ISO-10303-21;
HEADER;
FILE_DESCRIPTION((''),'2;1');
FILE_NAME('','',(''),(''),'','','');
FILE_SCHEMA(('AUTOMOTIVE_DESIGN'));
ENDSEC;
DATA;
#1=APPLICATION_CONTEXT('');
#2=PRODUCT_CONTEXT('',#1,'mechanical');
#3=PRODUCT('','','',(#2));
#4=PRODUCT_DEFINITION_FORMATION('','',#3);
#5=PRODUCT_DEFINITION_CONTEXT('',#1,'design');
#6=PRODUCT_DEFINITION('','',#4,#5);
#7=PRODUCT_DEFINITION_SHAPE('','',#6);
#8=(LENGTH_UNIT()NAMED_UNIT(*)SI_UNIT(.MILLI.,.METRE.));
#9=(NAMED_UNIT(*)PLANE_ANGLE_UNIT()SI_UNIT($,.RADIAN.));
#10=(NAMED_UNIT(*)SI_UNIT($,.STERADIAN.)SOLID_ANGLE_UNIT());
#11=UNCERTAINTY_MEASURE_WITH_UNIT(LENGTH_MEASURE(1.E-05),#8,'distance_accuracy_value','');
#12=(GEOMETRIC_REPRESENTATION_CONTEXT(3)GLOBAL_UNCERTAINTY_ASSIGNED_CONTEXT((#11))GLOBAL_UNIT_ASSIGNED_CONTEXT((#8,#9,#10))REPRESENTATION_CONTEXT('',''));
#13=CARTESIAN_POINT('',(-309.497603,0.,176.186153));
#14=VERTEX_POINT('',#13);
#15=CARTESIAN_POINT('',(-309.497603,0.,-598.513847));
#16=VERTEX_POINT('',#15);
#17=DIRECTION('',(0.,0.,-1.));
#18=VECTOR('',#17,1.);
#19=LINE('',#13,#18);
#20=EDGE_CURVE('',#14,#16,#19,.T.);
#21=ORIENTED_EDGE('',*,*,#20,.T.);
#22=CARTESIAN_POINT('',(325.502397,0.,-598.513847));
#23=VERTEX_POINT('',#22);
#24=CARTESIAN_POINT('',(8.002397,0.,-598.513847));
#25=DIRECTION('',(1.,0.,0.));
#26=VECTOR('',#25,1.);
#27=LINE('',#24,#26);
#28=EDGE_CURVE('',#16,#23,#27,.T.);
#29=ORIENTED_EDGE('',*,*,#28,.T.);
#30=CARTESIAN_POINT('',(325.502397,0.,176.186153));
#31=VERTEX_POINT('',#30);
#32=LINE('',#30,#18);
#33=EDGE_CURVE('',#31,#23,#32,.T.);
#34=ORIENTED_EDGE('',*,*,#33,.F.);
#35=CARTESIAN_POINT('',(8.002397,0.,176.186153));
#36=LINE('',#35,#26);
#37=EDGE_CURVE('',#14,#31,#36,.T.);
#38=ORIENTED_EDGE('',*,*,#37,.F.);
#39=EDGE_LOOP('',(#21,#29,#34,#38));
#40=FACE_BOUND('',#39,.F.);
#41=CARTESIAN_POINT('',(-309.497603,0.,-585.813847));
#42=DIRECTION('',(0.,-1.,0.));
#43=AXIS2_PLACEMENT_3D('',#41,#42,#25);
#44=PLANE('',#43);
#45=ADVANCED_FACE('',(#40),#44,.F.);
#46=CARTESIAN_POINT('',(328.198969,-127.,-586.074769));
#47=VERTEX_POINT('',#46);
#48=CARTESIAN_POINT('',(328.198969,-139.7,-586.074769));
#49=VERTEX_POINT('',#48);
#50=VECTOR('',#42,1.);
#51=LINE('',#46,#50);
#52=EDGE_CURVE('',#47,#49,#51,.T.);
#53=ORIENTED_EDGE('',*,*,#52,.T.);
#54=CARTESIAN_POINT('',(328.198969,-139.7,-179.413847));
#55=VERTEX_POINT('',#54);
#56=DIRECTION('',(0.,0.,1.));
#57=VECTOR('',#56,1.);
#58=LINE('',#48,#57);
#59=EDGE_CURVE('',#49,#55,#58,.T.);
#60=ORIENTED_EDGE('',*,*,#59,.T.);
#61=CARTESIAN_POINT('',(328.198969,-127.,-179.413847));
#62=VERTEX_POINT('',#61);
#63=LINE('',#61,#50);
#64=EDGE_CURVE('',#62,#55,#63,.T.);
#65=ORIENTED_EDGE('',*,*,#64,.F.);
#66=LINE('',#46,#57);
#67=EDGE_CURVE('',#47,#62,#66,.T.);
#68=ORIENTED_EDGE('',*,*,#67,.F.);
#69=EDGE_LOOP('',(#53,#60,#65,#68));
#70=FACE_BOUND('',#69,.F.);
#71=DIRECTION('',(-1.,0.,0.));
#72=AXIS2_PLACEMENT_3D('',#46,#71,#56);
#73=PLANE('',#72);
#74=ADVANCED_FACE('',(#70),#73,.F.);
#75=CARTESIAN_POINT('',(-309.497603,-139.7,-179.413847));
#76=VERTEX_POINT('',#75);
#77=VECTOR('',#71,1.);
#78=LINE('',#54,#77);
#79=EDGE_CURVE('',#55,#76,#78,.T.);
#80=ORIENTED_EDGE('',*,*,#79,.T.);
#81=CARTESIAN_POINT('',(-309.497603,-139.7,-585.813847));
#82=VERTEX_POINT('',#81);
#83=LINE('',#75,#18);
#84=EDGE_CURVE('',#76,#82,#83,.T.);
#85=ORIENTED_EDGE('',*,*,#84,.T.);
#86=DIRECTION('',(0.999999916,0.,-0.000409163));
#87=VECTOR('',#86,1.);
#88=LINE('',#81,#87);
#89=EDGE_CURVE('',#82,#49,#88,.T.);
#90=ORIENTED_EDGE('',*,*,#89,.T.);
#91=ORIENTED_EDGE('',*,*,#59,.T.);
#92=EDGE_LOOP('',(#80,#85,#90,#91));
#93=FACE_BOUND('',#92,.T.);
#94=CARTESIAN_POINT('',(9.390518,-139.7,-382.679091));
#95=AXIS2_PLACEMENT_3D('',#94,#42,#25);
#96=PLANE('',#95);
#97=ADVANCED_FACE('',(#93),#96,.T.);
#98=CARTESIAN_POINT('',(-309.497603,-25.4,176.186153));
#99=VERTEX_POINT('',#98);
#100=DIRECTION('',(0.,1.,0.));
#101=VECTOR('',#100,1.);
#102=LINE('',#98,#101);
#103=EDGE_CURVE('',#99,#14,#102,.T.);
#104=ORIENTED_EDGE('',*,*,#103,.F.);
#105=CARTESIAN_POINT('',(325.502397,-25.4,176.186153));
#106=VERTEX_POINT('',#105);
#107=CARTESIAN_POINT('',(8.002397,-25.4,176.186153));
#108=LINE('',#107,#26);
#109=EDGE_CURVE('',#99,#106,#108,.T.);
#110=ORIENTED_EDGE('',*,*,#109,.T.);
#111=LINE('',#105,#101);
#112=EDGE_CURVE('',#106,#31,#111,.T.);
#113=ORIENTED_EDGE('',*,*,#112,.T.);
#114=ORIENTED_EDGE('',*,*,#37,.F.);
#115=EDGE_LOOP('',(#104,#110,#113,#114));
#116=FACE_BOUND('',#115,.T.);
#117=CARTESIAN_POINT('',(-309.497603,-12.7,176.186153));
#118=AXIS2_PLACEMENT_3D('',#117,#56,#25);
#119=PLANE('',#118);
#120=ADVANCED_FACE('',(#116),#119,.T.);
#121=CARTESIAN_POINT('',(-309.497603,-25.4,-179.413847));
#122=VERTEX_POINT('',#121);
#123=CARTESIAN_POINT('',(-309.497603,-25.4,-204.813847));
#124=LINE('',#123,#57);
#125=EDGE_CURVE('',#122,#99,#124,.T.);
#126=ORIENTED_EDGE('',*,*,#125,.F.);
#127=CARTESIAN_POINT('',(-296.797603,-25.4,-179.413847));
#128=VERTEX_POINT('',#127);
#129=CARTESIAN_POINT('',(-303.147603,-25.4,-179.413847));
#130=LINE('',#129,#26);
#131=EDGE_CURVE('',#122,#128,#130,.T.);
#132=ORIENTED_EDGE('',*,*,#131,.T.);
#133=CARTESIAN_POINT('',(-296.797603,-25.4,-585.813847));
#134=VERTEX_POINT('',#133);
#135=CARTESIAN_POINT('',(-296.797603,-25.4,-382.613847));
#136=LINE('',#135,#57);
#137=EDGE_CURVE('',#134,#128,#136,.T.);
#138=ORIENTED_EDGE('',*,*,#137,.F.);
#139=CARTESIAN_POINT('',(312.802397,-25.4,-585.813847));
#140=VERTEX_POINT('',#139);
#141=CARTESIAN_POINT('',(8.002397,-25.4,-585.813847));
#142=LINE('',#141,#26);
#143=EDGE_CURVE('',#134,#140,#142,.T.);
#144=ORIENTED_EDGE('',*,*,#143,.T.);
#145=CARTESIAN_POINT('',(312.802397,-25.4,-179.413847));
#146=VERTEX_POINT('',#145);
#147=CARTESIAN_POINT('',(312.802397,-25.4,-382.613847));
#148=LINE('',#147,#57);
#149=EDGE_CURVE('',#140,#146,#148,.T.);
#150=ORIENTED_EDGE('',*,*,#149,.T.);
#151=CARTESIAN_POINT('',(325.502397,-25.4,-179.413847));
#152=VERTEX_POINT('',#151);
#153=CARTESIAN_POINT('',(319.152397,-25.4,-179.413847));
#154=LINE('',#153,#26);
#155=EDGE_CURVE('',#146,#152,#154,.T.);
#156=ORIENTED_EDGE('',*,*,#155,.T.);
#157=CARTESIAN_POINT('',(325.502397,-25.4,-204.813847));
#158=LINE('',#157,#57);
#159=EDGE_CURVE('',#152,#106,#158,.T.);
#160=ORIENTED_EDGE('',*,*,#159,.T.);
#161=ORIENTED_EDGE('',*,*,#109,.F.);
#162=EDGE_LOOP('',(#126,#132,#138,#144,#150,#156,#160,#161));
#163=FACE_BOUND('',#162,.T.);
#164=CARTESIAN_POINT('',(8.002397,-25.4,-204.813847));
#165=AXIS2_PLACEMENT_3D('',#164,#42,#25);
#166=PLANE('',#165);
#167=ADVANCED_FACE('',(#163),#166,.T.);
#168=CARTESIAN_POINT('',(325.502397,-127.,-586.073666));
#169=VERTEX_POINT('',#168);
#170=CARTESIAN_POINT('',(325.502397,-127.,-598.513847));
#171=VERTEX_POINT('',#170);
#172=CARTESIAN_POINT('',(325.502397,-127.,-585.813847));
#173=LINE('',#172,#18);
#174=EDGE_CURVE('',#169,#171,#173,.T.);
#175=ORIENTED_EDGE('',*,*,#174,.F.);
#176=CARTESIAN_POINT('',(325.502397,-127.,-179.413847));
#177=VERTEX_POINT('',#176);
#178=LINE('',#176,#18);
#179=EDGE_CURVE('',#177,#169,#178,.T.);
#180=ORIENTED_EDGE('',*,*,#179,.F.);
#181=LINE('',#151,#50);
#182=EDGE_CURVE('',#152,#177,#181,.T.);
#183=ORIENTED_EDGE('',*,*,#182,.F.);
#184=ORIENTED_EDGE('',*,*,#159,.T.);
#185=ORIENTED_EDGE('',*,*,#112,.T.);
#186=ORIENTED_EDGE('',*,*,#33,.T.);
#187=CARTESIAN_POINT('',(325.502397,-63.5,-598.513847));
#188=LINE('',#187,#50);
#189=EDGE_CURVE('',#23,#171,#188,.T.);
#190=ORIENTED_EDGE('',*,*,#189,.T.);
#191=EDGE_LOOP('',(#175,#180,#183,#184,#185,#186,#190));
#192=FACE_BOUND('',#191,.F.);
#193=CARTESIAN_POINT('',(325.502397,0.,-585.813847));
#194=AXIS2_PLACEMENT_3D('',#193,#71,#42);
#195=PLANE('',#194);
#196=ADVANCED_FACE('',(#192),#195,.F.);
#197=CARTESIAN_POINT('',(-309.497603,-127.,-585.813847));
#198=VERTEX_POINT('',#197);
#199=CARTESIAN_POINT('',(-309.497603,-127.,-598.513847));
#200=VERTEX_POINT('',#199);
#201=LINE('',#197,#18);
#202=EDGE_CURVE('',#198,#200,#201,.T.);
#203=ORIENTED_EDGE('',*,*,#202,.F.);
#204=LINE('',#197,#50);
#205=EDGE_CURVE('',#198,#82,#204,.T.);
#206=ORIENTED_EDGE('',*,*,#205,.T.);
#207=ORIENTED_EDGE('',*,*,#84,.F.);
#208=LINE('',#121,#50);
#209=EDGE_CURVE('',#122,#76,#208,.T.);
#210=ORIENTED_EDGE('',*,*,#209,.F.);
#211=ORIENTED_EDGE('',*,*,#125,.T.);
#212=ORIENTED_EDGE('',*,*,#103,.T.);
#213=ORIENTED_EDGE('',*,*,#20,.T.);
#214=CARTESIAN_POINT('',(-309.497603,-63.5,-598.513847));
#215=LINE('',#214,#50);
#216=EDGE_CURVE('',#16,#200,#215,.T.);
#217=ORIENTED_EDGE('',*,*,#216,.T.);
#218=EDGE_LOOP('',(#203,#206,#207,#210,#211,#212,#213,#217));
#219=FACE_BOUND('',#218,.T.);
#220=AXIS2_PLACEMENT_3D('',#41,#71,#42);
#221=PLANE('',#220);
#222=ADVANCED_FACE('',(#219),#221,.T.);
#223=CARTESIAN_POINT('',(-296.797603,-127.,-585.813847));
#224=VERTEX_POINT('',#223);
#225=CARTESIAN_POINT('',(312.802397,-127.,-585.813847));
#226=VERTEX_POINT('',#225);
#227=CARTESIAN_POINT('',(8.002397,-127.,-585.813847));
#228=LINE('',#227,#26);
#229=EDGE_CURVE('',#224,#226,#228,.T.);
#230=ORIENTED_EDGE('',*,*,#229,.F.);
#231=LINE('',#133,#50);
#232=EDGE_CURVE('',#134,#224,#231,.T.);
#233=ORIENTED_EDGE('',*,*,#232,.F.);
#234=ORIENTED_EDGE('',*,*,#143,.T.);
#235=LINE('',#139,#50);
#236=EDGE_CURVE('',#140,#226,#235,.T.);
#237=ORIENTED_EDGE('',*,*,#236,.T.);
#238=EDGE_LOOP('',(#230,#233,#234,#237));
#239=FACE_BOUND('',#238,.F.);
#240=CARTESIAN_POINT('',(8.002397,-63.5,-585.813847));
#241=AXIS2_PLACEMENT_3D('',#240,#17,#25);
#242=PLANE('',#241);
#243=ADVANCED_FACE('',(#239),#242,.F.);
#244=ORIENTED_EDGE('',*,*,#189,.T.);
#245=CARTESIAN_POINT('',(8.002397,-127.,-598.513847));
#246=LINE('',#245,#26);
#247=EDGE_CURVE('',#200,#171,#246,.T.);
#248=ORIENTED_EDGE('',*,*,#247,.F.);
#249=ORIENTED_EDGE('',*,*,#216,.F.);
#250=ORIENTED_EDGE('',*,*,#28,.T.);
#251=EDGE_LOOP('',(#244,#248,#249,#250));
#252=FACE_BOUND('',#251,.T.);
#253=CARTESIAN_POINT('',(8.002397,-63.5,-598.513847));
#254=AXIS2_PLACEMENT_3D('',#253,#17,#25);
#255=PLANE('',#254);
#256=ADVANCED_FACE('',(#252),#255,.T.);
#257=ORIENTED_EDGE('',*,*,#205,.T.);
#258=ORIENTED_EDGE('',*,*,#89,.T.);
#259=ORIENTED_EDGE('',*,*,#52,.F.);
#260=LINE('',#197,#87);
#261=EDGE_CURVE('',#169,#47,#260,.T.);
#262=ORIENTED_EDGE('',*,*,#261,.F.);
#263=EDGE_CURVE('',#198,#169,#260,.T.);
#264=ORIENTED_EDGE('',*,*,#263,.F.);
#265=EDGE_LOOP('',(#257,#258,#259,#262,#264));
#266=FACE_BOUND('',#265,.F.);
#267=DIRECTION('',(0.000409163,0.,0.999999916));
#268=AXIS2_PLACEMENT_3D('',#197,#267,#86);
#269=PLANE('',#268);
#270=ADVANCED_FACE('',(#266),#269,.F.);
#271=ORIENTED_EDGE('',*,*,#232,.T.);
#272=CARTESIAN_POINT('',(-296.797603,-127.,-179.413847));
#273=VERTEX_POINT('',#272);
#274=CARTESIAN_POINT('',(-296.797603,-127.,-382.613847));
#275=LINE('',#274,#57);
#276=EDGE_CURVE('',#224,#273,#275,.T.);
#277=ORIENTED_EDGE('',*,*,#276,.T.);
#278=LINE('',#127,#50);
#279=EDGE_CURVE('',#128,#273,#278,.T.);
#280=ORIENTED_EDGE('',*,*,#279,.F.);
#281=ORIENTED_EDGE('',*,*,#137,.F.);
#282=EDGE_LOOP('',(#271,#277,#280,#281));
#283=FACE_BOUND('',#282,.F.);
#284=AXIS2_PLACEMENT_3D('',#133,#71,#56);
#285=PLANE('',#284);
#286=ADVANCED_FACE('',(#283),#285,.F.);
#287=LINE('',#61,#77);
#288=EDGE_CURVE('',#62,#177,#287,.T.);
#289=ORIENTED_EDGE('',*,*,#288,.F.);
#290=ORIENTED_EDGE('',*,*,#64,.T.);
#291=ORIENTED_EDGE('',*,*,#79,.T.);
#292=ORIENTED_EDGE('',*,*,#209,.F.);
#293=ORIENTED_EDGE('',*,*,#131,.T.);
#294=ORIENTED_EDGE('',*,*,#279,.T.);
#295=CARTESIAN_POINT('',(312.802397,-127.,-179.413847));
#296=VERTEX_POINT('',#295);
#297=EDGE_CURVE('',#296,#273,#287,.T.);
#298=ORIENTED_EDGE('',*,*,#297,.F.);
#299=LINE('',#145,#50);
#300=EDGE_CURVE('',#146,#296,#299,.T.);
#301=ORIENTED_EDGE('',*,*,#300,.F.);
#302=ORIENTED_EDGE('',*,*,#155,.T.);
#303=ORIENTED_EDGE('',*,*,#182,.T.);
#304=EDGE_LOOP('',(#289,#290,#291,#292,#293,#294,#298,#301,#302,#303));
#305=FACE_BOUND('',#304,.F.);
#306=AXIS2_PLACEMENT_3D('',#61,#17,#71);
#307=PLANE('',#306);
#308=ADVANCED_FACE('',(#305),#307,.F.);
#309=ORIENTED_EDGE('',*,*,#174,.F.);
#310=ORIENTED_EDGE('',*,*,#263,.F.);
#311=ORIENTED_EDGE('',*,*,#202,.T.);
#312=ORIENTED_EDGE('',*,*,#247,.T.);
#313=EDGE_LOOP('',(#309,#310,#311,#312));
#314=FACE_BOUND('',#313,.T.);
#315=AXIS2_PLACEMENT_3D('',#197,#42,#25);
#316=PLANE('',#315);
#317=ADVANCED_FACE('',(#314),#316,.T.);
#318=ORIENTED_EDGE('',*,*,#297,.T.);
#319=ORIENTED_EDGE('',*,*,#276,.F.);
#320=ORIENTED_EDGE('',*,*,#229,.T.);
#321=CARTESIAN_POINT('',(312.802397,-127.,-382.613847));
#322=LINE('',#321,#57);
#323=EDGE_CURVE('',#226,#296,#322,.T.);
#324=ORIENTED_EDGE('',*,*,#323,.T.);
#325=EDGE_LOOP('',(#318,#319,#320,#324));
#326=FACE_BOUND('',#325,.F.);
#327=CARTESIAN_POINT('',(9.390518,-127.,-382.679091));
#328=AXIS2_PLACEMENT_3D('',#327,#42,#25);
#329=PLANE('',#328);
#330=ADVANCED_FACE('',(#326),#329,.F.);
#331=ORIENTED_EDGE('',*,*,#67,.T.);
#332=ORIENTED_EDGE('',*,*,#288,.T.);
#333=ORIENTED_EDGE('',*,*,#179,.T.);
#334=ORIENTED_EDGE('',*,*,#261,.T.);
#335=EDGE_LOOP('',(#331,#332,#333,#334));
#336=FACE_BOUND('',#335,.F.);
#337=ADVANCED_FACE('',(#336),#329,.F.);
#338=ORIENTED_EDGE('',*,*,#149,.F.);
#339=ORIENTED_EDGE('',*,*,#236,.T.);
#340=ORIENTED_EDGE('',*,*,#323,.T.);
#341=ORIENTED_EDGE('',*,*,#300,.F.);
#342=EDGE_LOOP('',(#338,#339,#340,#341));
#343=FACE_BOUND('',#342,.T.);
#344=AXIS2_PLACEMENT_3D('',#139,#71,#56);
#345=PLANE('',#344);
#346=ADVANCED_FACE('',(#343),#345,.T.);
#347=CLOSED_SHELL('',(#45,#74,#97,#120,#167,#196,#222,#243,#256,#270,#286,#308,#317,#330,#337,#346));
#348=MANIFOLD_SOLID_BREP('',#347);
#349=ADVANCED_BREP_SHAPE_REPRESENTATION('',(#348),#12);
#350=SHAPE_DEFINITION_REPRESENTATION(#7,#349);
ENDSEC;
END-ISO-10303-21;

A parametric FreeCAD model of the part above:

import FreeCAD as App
import Part
import Sketcher
Q = App.Units.Quantity


def add_polygon(sketch, points):
    """Adds a closed chain of lines whose ends are joined by coincident constraints."""
    first, n = sketch.GeometryCount, len(points)
    for a, b in zip(points, points[1:] + points[:1]):
        sketch.addGeometry(Part.LineSegment(App.Vector(*a, 0), App.Vector(*b, 0)), False)
    for i in range(n):
        sketch.addConstraint(Sketcher.Constraint("Coincident", first + i, 2, first + (i + 1) % n, 1))

doc = App.newDocument("Part")
body = doc.addObject("PartDesign::Body", "Body")

# Sketch on XZ plane
sketch1 = doc.addObject("Sketcher::SketchObject", "Sketch")
body.addObject(sketch1)
sketch1.AttachmentSupport = (doc.XZ_Plane, [""])
sketch1.MapMode = "FlatFace"
add_polygon(sketch1, [(-309, 176), (-309, -586), (326, -586), (326, 176)])  # lines 0-3
sketch1.addConstraint(Sketcher.Constraint("Vertical", 0))
sketch1.addConstraint(Sketcher.Constraint("Horizontal", 1))
sketch1.addConstraint(Sketcher.Constraint("Vertical", 2))
sketch1.addConstraint(Sketcher.Constraint("Horizontal", 3))
sketch1.addConstraint(Sketcher.Constraint("DistanceX", 1, 1, 1, 2, Q("25 in")))
sketch1.addConstraint(Sketcher.Constraint("DistanceY", 0, 2, 0, 1, Q("30 in")))
sketch1.addConstraint(Sketcher.Constraint("DistanceX", 0, 2, -1, 1, Q("309.497603 mm")))
sketch1.addConstraint(Sketcher.Constraint("DistanceY", 0, 2, -1, 1, Q("585.813847 mm")))
pad1 = doc.addObject("PartDesign::Pad", "Pad")
body.addObject(pad1)
pad1.Profile = sketch1
pad1.Length = Q("0.5 in")

# Sketch on XZ plane
sketch2 = doc.addObject("Sketcher::SketchObject", "Sketch001")
body.addObject(sketch2)
sketch2.AttachmentSupport = (doc.XZ_Plane, [""])
sketch2.MapMode = "FlatFace"
sketch2.AttachmentOffset = App.Placement(App.Vector(0, 0, 0.5 * 25.4), App.Rotation())
add_polygon(sketch2, [(-309, 176), (-309, -586), (326, -586), (326, 176)])  # lines 0-3
sketch2.addConstraint(Sketcher.Constraint("Vertical", 0))
sketch2.addConstraint(Sketcher.Constraint("Horizontal", 1))
sketch2.addConstraint(Sketcher.Constraint("Vertical", 2))
sketch2.addConstraint(Sketcher.Constraint("Horizontal", 3))
sketch2.addConstraint(Sketcher.Constraint("DistanceX", 1, 1, 1, 2, Q("25 in")))
sketch2.addConstraint(Sketcher.Constraint("DistanceY", 0, 2, 0, 1, Q("30 in")))
sketch2.addConstraint(Sketcher.Constraint("DistanceX", 0, 2, -1, 1, Q("309.497603 mm")))
sketch2.addConstraint(Sketcher.Constraint("DistanceY", 0, 2, -1, 1, Q("585.813847 mm")))
pad2 = doc.addObject("PartDesign::Pad", "Pad001")
body.addObject(pad2)
pad2.Profile = sketch2
pad2.Length = Q("0.5 in")

# Sketch on XZ plane
sketch3 = doc.addObject("Sketcher::SketchObject", "Sketch002")
body.addObject(sketch3)
sketch3.AttachmentSupport = (doc.XZ_Plane, [""])
sketch3.MapMode = "FlatFace"
sketch3.AttachmentOffset = App.Placement(App.Vector(0, 0, 1 * 25.4), App.Rotation())
add_polygon(sketch3, [(-309, -179), (-309, -586), (-297, -586), (-297, -179)])  # lines 0-3
sketch3.addConstraint(Sketcher.Constraint("Vertical", 0))
sketch3.addConstraint(Sketcher.Constraint("Horizontal", 1))
sketch3.addConstraint(Sketcher.Constraint("Vertical", 2))
sketch3.addConstraint(Sketcher.Constraint("Horizontal", 3))
sketch3.addConstraint(Sketcher.Constraint("DistanceY", 0, 2, 0, 1, Q("16 in")))
sketch3.addConstraint(Sketcher.Constraint("DistanceX", 1, 1, 1, 2, Q("0.5 in")))
sketch3.addConstraint(Sketcher.Constraint("DistanceX", 0, 2, -1, 1, Q("309.497603 mm")))
sketch3.addConstraint(Sketcher.Constraint("DistanceY", 0, 2, -1, 1, Q("585.813847 mm")))
pad3 = doc.addObject("PartDesign::Pad", "Pad002")
body.addObject(pad3)
pad3.Profile = sketch3
pad3.Length = Q("4 in")

# Sketch on XZ plane
sketch4 = doc.addObject("Sketcher::SketchObject", "Sketch003")
body.addObject(sketch4)
sketch4.AttachmentSupport = (doc.XZ_Plane, [""])
sketch4.MapMode = "FlatFace"
sketch4.AttachmentOffset = App.Placement(App.Vector(0, 0, 1 * 25.4), App.Rotation())
add_polygon(sketch4, [(313, -179), (313, -586), (326, -586), (326, -179)])  # lines 0-3
sketch4.addConstraint(Sketcher.Constraint("Vertical", 0))
sketch4.addConstraint(Sketcher.Constraint("Horizontal", 1))
sketch4.addConstraint(Sketcher.Constraint("Vertical", 2))
sketch4.addConstraint(Sketcher.Constraint("Horizontal", 3))
sketch4.addConstraint(Sketcher.Constraint("DistanceY", 0, 2, 0, 1, Q("16 in")))
sketch4.addConstraint(Sketcher.Constraint("DistanceX", 1, 1, 1, 2, Q("0.5 in")))
sketch4.addConstraint(Sketcher.Constraint("DistanceX", -1, 1, 0, 2, Q("312.802397 mm")))
sketch4.addConstraint(Sketcher.Constraint("DistanceY", 0, 2, -1, 1, Q("585.813847 mm")))
pad4 = doc.addObject("PartDesign::Pad", "Pad003")
body.addObject(pad4)
pad4.Profile = sketch4
pad4.Length = Q("4 in")

# Sketch on XZ plane
sketch5 = doc.addObject("Sketcher::SketchObject", "Sketch004")
body.addObject(sketch5)
sketch5.AttachmentSupport = (doc.XZ_Plane, [""])
sketch5.MapMode = "FlatFace"
sketch5.AttachmentOffset = App.Placement(App.Vector(0, 0, 5 * 25.4), App.Rotation())
add_polygon(sketch5, [(328, -179), (-309, -179), (-309, -586), (328, -586)])  # lines 0-3
sketch5.addConstraint(Sketcher.Constraint("Horizontal", 0))
sketch5.addConstraint(Sketcher.Constraint("Vertical", 1))
sketch5.addConstraint(Sketcher.Constraint("Vertical", 3))
sketch5.addConstraint(Sketcher.Constraint("DistanceY", 1, 2, 1, 1, Q("16 in")))
sketch5.addConstraint(Sketcher.Constraint("DistanceY", 3, 1, 3, 2, Q("406.660922 mm")))
sketch5.addConstraint(Sketcher.Constraint("DistanceX", 0, 2, 0, 1, Q("637.696572 mm")))
sketch5.addConstraint(Sketcher.Constraint("DistanceX", -1, 1, 2, 2, Q("328.198969 mm")))
sketch5.addConstraint(Sketcher.Constraint("DistanceY", 2, 2, -1, 1, Q("586.074769 mm")))
pad5 = doc.addObject("PartDesign::Pad", "Pad004")
body.addObject(pad5)
pad5.Profile = sketch5
pad5.Length = Q("0.5 in")

# Sketch on XY plane
sketch6 = doc.addObject("Sketcher::SketchObject", "Sketch005")
body.addObject(sketch6)
sketch6.AttachmentSupport = (doc.XY_Plane, [""])
sketch6.MapMode = "FlatFace"
sketch6.AttachmentOffset = App.Placement(App.Vector(0, 0, -585.813847), App.Rotation())
add_polygon(sketch6, [(-309, -127), (-309, 0), (326, 0), (326, -127)])  # lines 0-3
sketch6.addConstraint(Sketcher.Constraint("Vertical", 0))
sketch6.addConstraint(Sketcher.Constraint("Horizontal", 1))
sketch6.addConstraint(Sketcher.Constraint("Vertical", 2))
sketch6.addConstraint(Sketcher.Constraint("Horizontal", 3))
sketch6.addConstraint(Sketcher.Constraint("PointOnObject", 0, 2, -1))
sketch6.addConstraint(Sketcher.Constraint("DistanceX", 1, 1, 1, 2, Q("25 in")))
sketch6.addConstraint(Sketcher.Constraint("DistanceY", 0, 1, 0, 2, Q("5 in")))
sketch6.addConstraint(Sketcher.Constraint("DistanceX", 0, 2, -1, 1, Q("309.497603 mm")))
pad6 = doc.addObject("PartDesign::Pad", "Pad005")
body.addObject(pad6)
pad6.Profile = sketch6
pad6.Length = Q("0.5 in")
pad6.Reversed = True

doc.recompute()
